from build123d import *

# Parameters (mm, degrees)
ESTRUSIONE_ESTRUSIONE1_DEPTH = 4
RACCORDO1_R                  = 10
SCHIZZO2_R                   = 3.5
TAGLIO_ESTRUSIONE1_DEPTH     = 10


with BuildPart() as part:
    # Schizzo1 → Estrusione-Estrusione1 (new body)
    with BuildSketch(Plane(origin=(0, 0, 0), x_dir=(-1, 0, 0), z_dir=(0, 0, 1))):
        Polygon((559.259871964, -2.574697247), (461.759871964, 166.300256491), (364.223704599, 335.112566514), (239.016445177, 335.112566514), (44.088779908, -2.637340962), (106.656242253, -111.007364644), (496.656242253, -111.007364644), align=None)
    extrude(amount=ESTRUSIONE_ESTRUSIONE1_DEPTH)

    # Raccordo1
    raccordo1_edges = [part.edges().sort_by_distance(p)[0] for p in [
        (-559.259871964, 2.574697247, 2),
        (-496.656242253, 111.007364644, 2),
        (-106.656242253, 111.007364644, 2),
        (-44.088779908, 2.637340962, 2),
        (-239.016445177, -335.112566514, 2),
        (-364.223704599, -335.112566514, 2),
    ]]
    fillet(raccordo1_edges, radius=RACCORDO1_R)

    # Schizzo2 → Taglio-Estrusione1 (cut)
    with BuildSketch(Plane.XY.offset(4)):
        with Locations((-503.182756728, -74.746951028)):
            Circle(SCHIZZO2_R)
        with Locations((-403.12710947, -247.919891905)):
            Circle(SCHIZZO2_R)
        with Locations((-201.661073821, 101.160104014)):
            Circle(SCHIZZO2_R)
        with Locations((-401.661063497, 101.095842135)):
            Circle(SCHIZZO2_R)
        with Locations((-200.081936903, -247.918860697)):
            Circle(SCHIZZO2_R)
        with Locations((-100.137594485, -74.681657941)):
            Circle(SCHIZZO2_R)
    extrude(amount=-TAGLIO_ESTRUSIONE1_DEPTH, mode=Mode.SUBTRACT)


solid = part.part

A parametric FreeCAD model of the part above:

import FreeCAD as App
import Part
import Sketcher
from FreeCAD import Vector
Q = App.Units.Quantity


def edges_at(feature, points):
    """Names of the edges that pass closest to the given points."""
    edges = feature.Shape.Edges
    near = lambda p: min(range(len(edges)), key=lambda i: edges[i].distToShape(Part.Vertex(*p))[0])
    return sorted({f"Edge{near(p) + 1}" for p in points})


def add_polygon(sketch, points):
    """Adds a closed chain of lines whose ends are joined by coincident constraints."""
    first, n = sketch.GeometryCount, len(points)
    for a, b in zip(points, points[1:] + points[:1]):
        sketch.addGeometry(Part.LineSegment(App.Vector(*a, 0), App.Vector(*b, 0)), False)
    for i in range(n):
        sketch.addConstraint(Sketcher.Constraint("Coincident", first + i, 2, first + (i + 1) % n, 1))

doc = App.newDocument("Part")
body = doc.addObject("PartDesign::Body", "Body")

sketch1 = doc.addObject("Sketcher::SketchObject", "Sketch")
body.addObject(sketch1)
sketch1.AttachmentSupport = (doc.XY_Plane, [""])
sketch1.MapMode = "FlatFace"
add_polygon(sketch1, [(-559, 3), (-462, -166), (-364, -335), (-239, -335), (-44, 3), (-107, 111), (-497, 111)])
sketch1.addConstraint([
    Sketcher.Constraint("Horizontal", 2),
    Sketcher.Constraint("Horizontal", 5),
    Sketcher.Constraint("Parallel", 0, 4),
    Sketcher.Constraint("DistanceX", 5, 2, 5, 1, Q("390 mm")),
    Sketcher.Constraint("Angle", 0, Q("-60 deg")),
    Sketcher.Constraint("Angle", 6, Q("-120 deg")),
    Sketcher.Constraint("Distance", 0, Q("195 mm")),
    Sketcher.Constraint("DistanceX", 2, 1, 2, 2, Q("125.207259 mm")),
    Sketcher.Constraint("Distance", 6, Q("125.207259 mm")),
    Sketcher.Constraint("DistanceX", 0, 2, -1, 1, Q("461.759872 mm")),
    Sketcher.Constraint("DistanceX", 3, 2, -1, 1, Q("44.08878 mm")),
    Sketcher.Constraint("DistanceY", -1, 1, 3, 2, Q("2.637341 mm")),
    Sketcher.Constraint("DistanceY", 1, 2, 0, 2, Q("168.81231 mm")),
    Sketcher.Constraint("Distance", 1, Q("194.963843 mm")),
])
pad1 = doc.addObject("PartDesign::Pad", "Pad")
body.addObject(pad1)
pad1.Profile = sketch1
pad1.Length = 4
doc.recompute()

fillet = doc.addObject("PartDesign::Fillet", "Fillet")
body.addObject(fillet)
fillet.Base = (pad1, edges_at(pad1, [
    (-559.26, 2.575, 2),
    (-496.656, 111.007, 2),
    (-106.656, 111.007, 2),
    (-44.089, 2.637, 2),
    (-239.016, -335.113, 2),
    (-364.224, -335.113, 2),
]))
fillet.Radius = 10

sketch2 = doc.addObject("Sketcher::SketchObject", "Sketch001")
body.addObject(sketch2)
sketch2.AttachmentSupport = (doc.XY_Plane, [""])
sketch2.MapMode = "FlatFace"
sketch2.AttachmentOffset = App.Placement(Vector(0, 0, 4), App.Rotation())
sketch2.addGeometry([
    Part.Circle(Vector(-503.2, -74.7, 0), Vector(0, 0, 1), 3.5),
    Part.Circle(Vector(-403.1, -247.9, 0), Vector(0, 0, 1), 3.5),
    Part.Circle(Vector(-201.7, 101.2, 0), Vector(0, 0, 1), 3.5),
    Part.Circle(Vector(-401.7, 101.1, 0), Vector(0, 0, 1), 3.5),
    Part.Circle(Vector(-200.1, -247.9, 0), Vector(0, 0, 1), 3.5),
    Part.Circle(Vector(-100.1, -74.7, 0), Vector(0, 0, 1), 3.5),
], False)
sketch2.addConstraint([
    Sketcher.Constraint("Equal", 0, 1),
    Sketcher.Constraint("Equal", 1, 2),
    Sketcher.Constraint("Equal", 2, 3),
    Sketcher.Constraint("Equal", 3, 4),
    Sketcher.Constraint("Equal", 4, 5),
    Sketcher.Constraint("Diameter", 0, Q("7 mm")),
    Sketcher.Constraint("DistanceY", 5, 3, 3, 3, Q("175.7775 mm")),
    Sketcher.Constraint("DistanceY", 0, 3, -1, 1, Q("74.746951 mm")),
    Sketcher.Constraint("DistanceX", 1, 3, -1, 1, Q("403.127109 mm")),
    Sketcher.Constraint("DistanceY", 1, 3, -1, 1, Q("247.919892 mm")),
    Sketcher.Constraint("DistanceY", 4, 3, -1, 1, Q("247.918861 mm")),
    Sketcher.Constraint("DistanceX", 3, 3, 2, 3, Q("199.99999 mm")),
    Sketcher.Constraint("DistanceY", 3, 3, 2, 3, Q("0.064262 mm")),
    Sketcher.Constraint("DistanceX", 0, 3, 4, 3, Q("303.10082 mm")),
    Sketcher.Constraint("DistanceX", 2, 3, 5, 3, Q("101.523479 mm")),
    Sketcher.Constraint("DistanceX", 0, 3, -1, 1, Q("503.182757 mm")),
    Sketcher.Constraint("DistanceX", 2, 3, -1, 1, Q("201.661074 mm")),
    Sketcher.Constraint("DistanceY", -1, 1, 2, 3, Q("101.160104 mm")),
])
pocket1 = doc.addObject("PartDesign::Pocket", "Pocket")
body.addObject(pocket1)
pocket1.Profile = sketch2
pocket1.Length = 10

doc.recompute()
